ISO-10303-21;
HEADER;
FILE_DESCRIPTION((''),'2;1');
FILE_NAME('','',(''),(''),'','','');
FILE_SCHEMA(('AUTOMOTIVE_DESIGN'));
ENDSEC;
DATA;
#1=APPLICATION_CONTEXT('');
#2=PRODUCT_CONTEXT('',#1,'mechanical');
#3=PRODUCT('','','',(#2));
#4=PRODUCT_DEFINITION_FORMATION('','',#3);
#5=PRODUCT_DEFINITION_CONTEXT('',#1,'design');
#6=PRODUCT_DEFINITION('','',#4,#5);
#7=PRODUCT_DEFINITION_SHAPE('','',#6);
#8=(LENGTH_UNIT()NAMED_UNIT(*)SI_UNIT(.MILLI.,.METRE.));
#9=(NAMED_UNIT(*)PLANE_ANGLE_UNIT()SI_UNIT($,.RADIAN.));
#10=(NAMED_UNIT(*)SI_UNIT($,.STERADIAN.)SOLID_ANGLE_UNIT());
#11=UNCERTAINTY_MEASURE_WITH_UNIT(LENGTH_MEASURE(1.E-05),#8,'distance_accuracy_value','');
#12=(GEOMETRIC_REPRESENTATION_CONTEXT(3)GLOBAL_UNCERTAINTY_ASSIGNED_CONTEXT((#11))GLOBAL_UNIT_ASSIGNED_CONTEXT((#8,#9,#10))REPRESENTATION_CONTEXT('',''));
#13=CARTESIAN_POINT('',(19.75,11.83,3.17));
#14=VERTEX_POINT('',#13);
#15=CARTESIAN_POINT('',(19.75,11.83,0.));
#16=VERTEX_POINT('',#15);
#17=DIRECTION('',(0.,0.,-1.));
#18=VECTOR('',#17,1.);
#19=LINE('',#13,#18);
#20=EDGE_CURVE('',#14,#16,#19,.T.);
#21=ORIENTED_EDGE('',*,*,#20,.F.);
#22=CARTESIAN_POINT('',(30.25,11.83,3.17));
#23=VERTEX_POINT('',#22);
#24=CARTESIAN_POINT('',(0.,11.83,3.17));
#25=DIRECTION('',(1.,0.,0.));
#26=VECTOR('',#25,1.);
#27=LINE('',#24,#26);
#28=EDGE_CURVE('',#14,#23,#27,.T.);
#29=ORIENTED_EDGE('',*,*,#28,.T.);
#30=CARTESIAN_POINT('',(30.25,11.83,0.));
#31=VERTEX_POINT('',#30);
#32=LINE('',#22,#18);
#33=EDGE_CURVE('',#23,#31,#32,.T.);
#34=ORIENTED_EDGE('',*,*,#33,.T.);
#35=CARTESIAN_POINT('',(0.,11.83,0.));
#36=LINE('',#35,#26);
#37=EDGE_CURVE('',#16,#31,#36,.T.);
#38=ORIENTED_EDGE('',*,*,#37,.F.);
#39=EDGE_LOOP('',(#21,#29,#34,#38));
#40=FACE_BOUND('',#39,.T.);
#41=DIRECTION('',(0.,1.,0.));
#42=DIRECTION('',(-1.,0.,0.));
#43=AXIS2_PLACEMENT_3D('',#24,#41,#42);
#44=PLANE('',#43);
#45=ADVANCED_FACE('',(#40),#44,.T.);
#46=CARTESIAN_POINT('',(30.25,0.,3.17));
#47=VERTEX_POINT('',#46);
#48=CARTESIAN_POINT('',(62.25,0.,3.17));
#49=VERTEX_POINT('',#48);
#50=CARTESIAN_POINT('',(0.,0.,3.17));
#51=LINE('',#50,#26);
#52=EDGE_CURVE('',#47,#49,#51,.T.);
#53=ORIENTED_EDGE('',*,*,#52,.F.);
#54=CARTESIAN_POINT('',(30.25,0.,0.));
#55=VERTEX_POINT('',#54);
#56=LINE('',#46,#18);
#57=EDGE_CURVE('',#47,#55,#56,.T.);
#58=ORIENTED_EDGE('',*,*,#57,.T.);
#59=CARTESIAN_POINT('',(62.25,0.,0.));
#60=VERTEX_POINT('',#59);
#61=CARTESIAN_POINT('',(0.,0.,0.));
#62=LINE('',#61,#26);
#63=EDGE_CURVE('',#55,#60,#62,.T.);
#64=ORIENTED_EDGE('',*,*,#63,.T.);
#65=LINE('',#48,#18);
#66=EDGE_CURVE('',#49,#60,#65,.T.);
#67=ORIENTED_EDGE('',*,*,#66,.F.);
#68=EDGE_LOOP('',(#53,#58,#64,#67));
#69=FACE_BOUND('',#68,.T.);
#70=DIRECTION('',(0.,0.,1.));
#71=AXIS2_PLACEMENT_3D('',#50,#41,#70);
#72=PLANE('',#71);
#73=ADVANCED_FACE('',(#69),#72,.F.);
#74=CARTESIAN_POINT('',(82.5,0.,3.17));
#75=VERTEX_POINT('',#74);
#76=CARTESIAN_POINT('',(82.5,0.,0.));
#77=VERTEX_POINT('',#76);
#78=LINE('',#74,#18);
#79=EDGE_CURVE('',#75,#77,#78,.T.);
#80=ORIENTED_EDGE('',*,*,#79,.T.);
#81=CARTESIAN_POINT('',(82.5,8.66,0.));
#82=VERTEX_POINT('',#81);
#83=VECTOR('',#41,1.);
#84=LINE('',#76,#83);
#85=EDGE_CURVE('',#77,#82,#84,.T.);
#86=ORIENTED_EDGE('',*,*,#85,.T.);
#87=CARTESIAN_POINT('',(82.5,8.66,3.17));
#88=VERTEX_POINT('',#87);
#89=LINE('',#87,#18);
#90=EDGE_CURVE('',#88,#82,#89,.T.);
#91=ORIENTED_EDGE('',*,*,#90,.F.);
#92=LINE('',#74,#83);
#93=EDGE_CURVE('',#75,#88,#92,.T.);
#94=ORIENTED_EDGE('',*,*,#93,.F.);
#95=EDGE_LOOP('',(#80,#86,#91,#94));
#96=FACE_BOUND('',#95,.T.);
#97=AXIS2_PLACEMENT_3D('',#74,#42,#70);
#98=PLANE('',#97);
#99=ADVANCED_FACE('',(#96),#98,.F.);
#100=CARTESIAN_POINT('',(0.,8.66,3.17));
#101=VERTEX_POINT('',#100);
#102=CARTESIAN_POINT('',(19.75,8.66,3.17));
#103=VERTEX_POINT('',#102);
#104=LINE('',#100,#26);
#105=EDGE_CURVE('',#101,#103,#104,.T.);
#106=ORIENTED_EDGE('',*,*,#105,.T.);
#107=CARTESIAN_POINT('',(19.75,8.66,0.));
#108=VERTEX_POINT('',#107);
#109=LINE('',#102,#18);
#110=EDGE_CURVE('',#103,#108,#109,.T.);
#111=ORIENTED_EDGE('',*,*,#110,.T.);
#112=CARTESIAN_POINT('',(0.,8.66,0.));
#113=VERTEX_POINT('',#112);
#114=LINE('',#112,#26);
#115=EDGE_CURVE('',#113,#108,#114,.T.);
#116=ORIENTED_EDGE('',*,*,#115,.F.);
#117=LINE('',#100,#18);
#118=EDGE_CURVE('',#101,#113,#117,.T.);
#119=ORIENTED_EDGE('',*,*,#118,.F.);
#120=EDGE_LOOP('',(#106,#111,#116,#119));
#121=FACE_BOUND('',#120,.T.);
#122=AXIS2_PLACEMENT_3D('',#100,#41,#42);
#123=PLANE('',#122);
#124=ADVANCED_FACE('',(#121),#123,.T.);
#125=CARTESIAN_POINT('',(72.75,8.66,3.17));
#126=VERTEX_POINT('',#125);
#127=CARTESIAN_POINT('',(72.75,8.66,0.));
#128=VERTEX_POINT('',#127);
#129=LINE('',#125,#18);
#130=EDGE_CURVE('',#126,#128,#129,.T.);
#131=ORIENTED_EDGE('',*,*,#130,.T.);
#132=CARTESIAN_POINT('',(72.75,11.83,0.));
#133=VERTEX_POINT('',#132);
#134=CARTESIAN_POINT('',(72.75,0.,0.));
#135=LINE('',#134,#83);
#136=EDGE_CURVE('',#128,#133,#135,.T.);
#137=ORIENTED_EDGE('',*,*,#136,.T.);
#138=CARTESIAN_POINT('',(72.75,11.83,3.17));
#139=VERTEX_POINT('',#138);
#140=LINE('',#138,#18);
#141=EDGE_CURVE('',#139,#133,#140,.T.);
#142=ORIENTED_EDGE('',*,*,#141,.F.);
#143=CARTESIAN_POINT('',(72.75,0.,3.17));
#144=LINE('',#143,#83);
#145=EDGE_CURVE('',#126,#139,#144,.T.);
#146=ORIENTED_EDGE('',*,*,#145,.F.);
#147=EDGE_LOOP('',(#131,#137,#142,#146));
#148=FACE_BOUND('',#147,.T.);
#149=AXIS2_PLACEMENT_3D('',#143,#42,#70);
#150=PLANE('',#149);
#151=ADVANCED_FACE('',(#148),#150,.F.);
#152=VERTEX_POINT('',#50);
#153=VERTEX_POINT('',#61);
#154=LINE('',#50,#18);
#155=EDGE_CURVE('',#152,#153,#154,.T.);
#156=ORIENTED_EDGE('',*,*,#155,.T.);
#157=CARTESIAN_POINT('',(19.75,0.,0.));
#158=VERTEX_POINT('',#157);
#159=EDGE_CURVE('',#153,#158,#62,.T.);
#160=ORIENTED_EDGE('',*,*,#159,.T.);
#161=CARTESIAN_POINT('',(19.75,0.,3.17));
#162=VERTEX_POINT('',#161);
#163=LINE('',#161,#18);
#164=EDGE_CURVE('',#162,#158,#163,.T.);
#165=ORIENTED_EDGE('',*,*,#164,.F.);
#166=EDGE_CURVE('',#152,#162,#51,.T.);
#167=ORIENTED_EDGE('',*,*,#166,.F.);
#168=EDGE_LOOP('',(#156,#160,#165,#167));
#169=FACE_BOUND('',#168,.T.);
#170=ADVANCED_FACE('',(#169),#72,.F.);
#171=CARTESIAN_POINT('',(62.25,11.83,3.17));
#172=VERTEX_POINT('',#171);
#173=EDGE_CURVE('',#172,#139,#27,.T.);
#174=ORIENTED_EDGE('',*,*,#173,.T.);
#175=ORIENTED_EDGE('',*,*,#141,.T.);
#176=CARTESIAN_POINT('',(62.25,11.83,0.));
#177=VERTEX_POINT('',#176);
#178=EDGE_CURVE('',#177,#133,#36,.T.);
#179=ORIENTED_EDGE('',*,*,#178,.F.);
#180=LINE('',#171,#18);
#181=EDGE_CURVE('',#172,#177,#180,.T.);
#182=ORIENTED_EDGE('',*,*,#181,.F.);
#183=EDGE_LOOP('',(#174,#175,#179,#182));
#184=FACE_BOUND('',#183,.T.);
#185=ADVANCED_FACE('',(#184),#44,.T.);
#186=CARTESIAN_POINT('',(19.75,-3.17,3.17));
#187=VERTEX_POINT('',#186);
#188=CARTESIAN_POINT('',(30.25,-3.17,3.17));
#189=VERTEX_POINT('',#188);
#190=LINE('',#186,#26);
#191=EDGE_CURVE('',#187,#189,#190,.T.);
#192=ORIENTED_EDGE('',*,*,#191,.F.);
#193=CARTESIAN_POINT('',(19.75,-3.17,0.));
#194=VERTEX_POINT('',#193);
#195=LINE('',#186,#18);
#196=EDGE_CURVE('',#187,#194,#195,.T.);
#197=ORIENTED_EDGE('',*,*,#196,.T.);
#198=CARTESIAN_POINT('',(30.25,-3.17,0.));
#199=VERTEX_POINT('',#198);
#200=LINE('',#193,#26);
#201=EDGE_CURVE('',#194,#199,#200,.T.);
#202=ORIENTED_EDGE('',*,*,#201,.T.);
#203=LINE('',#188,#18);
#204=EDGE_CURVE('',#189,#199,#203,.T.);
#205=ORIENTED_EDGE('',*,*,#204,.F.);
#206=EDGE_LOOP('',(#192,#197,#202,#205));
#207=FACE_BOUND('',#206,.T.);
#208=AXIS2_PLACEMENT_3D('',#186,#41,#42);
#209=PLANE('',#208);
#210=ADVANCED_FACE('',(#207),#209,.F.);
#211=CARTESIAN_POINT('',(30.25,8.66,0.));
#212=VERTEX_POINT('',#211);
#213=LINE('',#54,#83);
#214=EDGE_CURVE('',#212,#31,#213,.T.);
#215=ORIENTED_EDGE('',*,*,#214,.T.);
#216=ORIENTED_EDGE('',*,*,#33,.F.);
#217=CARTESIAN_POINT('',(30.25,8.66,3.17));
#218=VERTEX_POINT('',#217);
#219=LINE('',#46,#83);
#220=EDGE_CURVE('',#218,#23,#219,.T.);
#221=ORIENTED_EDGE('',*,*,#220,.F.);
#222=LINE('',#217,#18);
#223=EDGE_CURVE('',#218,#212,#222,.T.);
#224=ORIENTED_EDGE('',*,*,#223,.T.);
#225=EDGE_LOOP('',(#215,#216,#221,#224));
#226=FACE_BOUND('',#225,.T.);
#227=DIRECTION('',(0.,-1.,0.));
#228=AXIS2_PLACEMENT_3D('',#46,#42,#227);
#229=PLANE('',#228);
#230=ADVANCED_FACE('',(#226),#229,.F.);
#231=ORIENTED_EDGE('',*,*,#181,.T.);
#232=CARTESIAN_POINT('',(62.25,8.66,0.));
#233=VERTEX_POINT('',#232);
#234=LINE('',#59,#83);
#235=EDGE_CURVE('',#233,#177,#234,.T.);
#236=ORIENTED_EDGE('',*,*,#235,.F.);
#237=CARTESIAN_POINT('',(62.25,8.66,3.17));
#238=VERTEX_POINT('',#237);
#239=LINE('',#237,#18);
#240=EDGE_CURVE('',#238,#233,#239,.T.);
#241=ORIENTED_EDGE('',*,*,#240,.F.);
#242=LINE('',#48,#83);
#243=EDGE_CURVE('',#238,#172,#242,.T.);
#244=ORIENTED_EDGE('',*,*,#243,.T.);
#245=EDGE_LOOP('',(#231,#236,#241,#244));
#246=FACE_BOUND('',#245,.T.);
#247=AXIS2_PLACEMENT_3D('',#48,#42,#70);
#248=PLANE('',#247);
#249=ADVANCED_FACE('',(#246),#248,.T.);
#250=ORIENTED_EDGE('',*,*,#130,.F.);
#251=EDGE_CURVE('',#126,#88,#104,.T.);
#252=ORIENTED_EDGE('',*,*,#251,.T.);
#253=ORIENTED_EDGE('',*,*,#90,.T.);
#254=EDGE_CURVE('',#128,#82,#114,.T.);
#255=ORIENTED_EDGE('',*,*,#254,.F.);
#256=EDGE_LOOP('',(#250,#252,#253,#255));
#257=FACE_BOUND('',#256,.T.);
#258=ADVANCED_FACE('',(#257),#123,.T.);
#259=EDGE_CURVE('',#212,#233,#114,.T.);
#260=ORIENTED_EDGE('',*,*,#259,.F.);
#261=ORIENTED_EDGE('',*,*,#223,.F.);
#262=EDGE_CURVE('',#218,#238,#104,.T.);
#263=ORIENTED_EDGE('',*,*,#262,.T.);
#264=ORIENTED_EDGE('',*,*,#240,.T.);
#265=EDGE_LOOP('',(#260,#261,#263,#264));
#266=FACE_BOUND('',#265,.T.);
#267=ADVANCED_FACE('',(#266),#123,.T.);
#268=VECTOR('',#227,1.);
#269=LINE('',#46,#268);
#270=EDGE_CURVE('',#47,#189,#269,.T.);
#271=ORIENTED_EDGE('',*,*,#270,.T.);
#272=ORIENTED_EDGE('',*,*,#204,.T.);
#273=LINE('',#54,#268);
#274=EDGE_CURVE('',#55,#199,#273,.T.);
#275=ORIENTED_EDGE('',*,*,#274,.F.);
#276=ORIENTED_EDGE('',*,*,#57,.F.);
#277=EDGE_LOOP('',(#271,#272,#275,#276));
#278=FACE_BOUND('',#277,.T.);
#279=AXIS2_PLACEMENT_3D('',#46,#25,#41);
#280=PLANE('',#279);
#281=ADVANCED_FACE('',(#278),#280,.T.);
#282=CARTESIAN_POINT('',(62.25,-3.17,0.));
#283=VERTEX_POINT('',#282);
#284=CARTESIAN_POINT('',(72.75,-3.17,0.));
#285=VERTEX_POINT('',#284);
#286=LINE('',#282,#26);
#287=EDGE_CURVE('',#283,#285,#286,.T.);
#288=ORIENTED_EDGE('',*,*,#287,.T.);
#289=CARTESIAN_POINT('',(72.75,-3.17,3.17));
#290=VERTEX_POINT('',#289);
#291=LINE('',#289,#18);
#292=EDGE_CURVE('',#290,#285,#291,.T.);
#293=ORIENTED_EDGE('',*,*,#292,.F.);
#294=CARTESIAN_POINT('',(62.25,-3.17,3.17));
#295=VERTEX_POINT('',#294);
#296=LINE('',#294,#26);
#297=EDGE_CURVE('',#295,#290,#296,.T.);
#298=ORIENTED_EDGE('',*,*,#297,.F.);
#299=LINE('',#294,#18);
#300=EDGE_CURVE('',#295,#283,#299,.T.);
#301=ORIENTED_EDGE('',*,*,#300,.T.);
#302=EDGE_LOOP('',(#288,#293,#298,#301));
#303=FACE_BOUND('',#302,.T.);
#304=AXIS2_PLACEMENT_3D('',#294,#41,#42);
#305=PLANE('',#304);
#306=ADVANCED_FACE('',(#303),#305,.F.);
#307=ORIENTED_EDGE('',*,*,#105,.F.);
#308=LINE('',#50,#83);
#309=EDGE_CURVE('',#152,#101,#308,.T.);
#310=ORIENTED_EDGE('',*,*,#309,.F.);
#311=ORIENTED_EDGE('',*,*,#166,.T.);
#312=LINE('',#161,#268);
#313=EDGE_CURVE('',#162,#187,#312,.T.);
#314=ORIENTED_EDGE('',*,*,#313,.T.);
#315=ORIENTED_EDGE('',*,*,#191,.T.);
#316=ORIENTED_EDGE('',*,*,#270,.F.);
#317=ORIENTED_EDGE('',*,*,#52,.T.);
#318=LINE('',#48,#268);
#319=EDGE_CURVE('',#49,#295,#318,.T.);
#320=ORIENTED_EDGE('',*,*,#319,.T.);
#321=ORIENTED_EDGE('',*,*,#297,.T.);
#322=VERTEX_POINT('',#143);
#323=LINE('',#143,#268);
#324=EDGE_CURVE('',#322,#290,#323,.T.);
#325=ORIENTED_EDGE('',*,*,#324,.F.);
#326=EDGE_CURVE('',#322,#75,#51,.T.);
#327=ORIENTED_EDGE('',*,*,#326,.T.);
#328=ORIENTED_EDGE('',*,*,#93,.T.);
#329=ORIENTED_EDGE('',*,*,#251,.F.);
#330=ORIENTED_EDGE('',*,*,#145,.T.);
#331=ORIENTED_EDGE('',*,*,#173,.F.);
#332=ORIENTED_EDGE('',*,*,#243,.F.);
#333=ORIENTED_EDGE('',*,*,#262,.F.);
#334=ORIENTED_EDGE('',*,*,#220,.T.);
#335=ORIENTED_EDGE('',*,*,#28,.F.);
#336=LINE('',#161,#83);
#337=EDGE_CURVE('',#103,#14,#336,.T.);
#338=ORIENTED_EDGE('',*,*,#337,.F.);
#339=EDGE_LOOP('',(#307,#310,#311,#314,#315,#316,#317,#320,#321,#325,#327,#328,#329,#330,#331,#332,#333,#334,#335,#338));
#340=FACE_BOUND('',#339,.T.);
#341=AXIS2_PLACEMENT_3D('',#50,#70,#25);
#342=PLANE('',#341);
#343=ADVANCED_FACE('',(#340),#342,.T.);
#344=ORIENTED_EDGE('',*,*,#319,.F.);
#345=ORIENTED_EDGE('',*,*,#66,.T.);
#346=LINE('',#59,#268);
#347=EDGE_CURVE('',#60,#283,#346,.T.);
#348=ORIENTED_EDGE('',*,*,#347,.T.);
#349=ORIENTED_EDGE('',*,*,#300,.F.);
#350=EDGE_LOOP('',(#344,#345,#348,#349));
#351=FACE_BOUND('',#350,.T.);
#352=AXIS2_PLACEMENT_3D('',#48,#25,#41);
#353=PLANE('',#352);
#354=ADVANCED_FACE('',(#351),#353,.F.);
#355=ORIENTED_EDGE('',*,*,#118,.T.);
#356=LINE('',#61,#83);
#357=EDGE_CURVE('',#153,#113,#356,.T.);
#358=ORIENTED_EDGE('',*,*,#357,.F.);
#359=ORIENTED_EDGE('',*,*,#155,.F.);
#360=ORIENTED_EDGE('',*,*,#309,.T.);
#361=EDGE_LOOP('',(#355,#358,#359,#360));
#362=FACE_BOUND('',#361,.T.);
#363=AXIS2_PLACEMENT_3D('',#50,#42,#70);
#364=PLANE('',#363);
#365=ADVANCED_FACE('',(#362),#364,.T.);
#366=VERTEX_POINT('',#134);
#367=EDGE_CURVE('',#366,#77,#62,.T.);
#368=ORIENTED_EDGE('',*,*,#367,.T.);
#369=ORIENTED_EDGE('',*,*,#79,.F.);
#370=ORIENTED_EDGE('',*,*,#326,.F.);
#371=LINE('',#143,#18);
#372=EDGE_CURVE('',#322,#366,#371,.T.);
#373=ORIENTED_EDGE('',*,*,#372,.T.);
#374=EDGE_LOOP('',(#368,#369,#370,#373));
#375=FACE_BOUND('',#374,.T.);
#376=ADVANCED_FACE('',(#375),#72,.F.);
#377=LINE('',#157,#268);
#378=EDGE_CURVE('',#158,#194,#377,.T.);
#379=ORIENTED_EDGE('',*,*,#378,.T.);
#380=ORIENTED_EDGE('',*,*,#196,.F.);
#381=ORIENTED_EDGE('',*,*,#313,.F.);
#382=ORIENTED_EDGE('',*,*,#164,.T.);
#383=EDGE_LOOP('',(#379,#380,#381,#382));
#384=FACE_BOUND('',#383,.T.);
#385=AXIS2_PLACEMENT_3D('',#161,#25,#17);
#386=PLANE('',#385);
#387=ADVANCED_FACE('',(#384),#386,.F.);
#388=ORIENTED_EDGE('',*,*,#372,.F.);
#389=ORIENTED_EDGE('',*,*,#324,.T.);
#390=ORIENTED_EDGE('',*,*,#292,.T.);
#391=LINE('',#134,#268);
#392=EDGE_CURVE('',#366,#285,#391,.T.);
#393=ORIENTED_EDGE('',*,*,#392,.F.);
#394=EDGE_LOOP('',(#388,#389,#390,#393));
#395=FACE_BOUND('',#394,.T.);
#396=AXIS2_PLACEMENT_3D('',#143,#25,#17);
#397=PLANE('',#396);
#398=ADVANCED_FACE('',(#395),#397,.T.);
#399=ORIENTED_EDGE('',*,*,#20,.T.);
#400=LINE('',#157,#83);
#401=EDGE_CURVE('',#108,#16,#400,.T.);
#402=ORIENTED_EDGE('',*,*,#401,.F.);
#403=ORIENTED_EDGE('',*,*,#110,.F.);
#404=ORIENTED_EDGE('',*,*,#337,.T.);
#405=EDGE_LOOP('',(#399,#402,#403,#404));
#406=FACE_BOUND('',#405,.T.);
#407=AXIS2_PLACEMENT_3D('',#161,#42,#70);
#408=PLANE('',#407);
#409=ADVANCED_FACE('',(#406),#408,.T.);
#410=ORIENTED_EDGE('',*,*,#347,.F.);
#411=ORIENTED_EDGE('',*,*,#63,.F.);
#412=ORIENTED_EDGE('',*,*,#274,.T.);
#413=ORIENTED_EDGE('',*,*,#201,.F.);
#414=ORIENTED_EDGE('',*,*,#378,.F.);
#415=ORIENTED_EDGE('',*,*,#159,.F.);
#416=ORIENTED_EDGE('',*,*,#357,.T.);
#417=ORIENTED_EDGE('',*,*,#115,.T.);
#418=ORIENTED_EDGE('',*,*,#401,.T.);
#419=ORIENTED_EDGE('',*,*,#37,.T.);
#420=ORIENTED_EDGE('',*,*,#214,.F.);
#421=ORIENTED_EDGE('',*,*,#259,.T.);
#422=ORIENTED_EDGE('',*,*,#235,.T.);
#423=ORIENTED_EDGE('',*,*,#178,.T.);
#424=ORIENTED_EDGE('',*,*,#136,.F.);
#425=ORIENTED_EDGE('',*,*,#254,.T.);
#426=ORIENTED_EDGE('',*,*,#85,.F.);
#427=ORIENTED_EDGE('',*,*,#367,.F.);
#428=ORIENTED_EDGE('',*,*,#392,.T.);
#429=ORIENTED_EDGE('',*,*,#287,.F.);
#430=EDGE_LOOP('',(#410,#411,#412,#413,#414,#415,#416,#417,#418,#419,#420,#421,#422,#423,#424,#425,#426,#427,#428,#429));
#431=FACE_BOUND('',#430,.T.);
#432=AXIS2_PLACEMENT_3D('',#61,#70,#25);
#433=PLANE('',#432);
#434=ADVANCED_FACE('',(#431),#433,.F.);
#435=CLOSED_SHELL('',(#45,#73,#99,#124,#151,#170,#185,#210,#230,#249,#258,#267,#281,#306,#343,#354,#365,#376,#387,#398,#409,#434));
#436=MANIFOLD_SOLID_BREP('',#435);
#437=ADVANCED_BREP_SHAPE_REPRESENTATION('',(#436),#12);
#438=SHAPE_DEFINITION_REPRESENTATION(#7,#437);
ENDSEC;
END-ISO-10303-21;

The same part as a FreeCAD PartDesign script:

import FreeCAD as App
import Part
import Sketcher

V = App.Vector
Q = App.Units.Quantity


def add_polygon(sketch, points):
    """Adds a closed chain of lines whose ends are joined by coincident constraints."""
    first, n = sketch.GeometryCount, len(points)
    for a, b in zip(points, points[1:] + points[:1]):
        sketch.addGeometry(Part.LineSegment(App.Vector(*a, 0), App.Vector(*b, 0)), False)
    for i in range(n):
        sketch.addConstraint(Sketcher.Constraint("Coincident", first + i, 2, first + (i + 1) % n, 1))

doc = App.newDocument("Part")
params = doc.addObject("Spreadsheet::Sheet", "Params")
for row, (alias, value) in enumerate([
    ("sketch1_width", "32 mm"),
    ("sketch1_width2", "10.5 mm"),
    ("sketch1_width3", "19.75 mm"),
    ("sketch1_width4", "9.75 mm"),
    ("sketch1_height", "8.66 mm"),
    ("pad1_length", "3.17 mm"),
], start=1):
    params.set(f"A{row}", alias)
    params.set(f"B{row}", "=" + value)
    params.setAlias(f"B{row}", alias)

body = doc.addObject("PartDesign::Body", "Body")

sketch1 = body.newObject("Sketcher::SketchObject", "Sketch")
sketch1.AttachmentSupport = (doc.getObject("XY_Plane"), [""])
sketch1.MapMode = "FlatFace"
add_polygon(sketch1, [(0, 8.66), (0, 0), (19.75, 0), (19.75, -3.17), (30.25, -3.17), (30.25, 0), (62.25, 0), (62.25, -3.17), (72.75, -3.17), (72.75, 0), (82.5, 0), (82.5, 8.66), (72.75, 8.66), (72.75, 11.83), (62.25, 11.83), (62.25, 8.66), (30.25, 8.66), (30.25, 11.83), (19.75, 11.83), (19.75, 8.66)])
sketch1.addConstraint(Sketcher.Constraint("Vertical", 0))
sketch1.addConstraint(Sketcher.Constraint("Horizontal", 1))
sketch1.addConstraint(Sketcher.Constraint("Vertical", 2))
sketch1.addConstraint(Sketcher.Constraint("Horizontal", 3))
sketch1.addConstraint(Sketcher.Constraint("Vertical", 4))
sketch1.addConstraint(Sketcher.Constraint("Horizontal", 5))
sketch1.addConstraint(Sketcher.Constraint("Vertical", 6))
sketch1.addConstraint(Sketcher.Constraint("Horizontal", 7))
sketch1.addConstraint(Sketcher.Constraint("Vertical", 8))
sketch1.addConstraint(Sketcher.Constraint("Horizontal", 9))
sketch1.addConstraint(Sketcher.Constraint("Vertical", 10))
sketch1.addConstraint(Sketcher.Constraint("Horizontal", 11))
sketch1.addConstraint(Sketcher.Constraint("Vertical", 12))
sketch1.addConstraint(Sketcher.Constraint("Horizontal", 13))
sketch1.addConstraint(Sketcher.Constraint("Vertical", 14))
sketch1.addConstraint(Sketcher.Constraint("Horizontal", 15))
sketch1.addConstraint(Sketcher.Constraint("Vertical", 16))
sketch1.addConstraint(Sketcher.Constraint("Horizontal", 17))
sketch1.addConstraint(Sketcher.Constraint("Vertical", 18))
sketch1.addConstraint(Sketcher.Constraint("Horizontal", 19))
sketch1.addConstraint(Sketcher.Constraint("Coincident", 0, 2, -1, 1))
sketch1.addConstraint(Sketcher.Constraint("PointOnObject", 4, 2, -1))
sketch1.addConstraint(Sketcher.Constraint("PointOnObject", 8, 2, -1))
sketch1.addConstraint(Sketcher.Constraint("Horizontal", 3, 2, 6, 2))
sketch1.addConstraint(Sketcher.Constraint("Horizontal", 11, 2, 14, 2))
sketch1.addConstraint(Sketcher.Constraint("Horizontal", 13, 2, 16, 2))
sketch1.addConstraint(Sketcher.Constraint("Horizontal", 15, 2, 18, 2))
sketch1.addConstraint(Sketcher.Constraint("Vertical", 8, 2, 11, 2))
sketch1.addConstraint(Sketcher.Constraint("Vertical", 6, 2, 13, 2))
sketch1.addConstraint(Sketcher.Constraint("Vertical", 4, 2, 15, 2))
sketch1.addConstraint(Sketcher.Constraint("Vertical", 2, 2, 17, 2))
sketch1.addConstraint(Sketcher.Constraint("Equal", 3, 7))
sketch1.addConstraint(Sketcher.Constraint("Equal", 8, 12))
sketch1.addConstraint(Sketcher.Constraint("DistanceX", 5, 1, 5, 2, Q("32 mm")))
sketch1.addConstraint(Sketcher.Constraint("DistanceX", 3, 1, 3, 2, Q("10.5 mm")))
sketch1.addConstraint(Sketcher.Constraint("DistanceY", 7, 2, 12, 2, Q("15 mm")))
sketch1.addConstraint(Sketcher.Constraint("DistanceX", 1, 1, 1, 2, Q("19.75 mm")))
sketch1.addConstraint(Sketcher.Constraint("DistanceX", 9, 1, 9, 2, Q("9.75 mm")))
sketch1.addConstraint(Sketcher.Constraint("DistanceY", 0, 2, 0, 1, Q("8.66 mm")))
sketch1.setExpression("Constraints[53]", "Params.sketch1_width")
sketch1.setExpression("Constraints[54]", "Params.sketch1_width2")
sketch1.setExpression("Constraints[56]", "Params.sketch1_width3")
sketch1.setExpression("Constraints[57]", "Params.sketch1_width4")
sketch1.setExpression("Constraints[58]", "Params.sketch1_height")
pad1 = body.newObject("PartDesign::Pad", "Pad")
pad1.Profile = sketch1
pad1.setExpression("Length", "Params.pad1_length")

doc.recompute()
